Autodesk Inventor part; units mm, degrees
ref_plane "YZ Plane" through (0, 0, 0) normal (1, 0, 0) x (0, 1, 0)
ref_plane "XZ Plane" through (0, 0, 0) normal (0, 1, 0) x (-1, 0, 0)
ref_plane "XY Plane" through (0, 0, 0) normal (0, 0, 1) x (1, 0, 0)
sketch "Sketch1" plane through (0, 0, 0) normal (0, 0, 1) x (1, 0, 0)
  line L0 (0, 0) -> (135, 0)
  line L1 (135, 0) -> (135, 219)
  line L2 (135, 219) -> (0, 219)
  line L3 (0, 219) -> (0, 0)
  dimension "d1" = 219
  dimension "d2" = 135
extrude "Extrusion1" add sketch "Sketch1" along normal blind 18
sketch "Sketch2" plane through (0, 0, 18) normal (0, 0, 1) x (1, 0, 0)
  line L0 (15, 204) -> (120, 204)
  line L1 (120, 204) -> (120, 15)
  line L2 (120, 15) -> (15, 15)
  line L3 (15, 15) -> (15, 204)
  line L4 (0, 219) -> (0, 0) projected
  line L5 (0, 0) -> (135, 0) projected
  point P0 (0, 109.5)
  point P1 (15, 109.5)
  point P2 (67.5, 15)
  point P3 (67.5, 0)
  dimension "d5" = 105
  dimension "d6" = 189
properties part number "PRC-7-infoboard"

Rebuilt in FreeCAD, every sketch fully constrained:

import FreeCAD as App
import Part
import Sketcher

V = App.Vector
Q = App.Units.Quantity

doc = App.newDocument("Part")
body = doc.addObject("PartDesign::Body", "Body")

sketch1 = body.newObject("Sketcher::SketchObject", "Sketch")
sketch1.AttachmentSupport = (doc.getObject("XY_Plane"), [""])
sketch1.MapMode = "FlatFace"
sketch1.addGeometry([
    Part.LineSegment(V(0, 219, 0), V(0, 0, 0)),
    Part.LineSegment(V(0, 0, 0), V(135, 0, 0)),
    Part.LineSegment(V(135, 0, 0), V(135, 219, 0)),
    Part.LineSegment(V(135, 219, 0), V(0, 219, 0)),
], False)
sketch1.addConstraint([
    Sketcher.Constraint("Coincident", 0, 2, 1, 1),
    Sketcher.Constraint("Coincident", 1, 2, 2, 1),
    Sketcher.Constraint("Coincident", 2, 2, 3, 1),
    Sketcher.Constraint("Coincident", 3, 2, 0, 1),
    Sketcher.Constraint("Vertical", 0),
    Sketcher.Constraint("Horizontal", 1),
    Sketcher.Constraint("Vertical", 2),
    Sketcher.Constraint("Horizontal", 3),
    Sketcher.Constraint("Coincident", 0, 2, -1, 1),
    Sketcher.Constraint("DistanceX", 1, 1, 1, 2, Q("135 mm")),
    Sketcher.Constraint("DistanceY", 0, 2, 0, 1, Q("219 mm")),
])
pad1 = body.newObject("PartDesign::Pad", "Pad")
pad1.Profile = sketch1
pad1.Length = 18

doc.recompute()
